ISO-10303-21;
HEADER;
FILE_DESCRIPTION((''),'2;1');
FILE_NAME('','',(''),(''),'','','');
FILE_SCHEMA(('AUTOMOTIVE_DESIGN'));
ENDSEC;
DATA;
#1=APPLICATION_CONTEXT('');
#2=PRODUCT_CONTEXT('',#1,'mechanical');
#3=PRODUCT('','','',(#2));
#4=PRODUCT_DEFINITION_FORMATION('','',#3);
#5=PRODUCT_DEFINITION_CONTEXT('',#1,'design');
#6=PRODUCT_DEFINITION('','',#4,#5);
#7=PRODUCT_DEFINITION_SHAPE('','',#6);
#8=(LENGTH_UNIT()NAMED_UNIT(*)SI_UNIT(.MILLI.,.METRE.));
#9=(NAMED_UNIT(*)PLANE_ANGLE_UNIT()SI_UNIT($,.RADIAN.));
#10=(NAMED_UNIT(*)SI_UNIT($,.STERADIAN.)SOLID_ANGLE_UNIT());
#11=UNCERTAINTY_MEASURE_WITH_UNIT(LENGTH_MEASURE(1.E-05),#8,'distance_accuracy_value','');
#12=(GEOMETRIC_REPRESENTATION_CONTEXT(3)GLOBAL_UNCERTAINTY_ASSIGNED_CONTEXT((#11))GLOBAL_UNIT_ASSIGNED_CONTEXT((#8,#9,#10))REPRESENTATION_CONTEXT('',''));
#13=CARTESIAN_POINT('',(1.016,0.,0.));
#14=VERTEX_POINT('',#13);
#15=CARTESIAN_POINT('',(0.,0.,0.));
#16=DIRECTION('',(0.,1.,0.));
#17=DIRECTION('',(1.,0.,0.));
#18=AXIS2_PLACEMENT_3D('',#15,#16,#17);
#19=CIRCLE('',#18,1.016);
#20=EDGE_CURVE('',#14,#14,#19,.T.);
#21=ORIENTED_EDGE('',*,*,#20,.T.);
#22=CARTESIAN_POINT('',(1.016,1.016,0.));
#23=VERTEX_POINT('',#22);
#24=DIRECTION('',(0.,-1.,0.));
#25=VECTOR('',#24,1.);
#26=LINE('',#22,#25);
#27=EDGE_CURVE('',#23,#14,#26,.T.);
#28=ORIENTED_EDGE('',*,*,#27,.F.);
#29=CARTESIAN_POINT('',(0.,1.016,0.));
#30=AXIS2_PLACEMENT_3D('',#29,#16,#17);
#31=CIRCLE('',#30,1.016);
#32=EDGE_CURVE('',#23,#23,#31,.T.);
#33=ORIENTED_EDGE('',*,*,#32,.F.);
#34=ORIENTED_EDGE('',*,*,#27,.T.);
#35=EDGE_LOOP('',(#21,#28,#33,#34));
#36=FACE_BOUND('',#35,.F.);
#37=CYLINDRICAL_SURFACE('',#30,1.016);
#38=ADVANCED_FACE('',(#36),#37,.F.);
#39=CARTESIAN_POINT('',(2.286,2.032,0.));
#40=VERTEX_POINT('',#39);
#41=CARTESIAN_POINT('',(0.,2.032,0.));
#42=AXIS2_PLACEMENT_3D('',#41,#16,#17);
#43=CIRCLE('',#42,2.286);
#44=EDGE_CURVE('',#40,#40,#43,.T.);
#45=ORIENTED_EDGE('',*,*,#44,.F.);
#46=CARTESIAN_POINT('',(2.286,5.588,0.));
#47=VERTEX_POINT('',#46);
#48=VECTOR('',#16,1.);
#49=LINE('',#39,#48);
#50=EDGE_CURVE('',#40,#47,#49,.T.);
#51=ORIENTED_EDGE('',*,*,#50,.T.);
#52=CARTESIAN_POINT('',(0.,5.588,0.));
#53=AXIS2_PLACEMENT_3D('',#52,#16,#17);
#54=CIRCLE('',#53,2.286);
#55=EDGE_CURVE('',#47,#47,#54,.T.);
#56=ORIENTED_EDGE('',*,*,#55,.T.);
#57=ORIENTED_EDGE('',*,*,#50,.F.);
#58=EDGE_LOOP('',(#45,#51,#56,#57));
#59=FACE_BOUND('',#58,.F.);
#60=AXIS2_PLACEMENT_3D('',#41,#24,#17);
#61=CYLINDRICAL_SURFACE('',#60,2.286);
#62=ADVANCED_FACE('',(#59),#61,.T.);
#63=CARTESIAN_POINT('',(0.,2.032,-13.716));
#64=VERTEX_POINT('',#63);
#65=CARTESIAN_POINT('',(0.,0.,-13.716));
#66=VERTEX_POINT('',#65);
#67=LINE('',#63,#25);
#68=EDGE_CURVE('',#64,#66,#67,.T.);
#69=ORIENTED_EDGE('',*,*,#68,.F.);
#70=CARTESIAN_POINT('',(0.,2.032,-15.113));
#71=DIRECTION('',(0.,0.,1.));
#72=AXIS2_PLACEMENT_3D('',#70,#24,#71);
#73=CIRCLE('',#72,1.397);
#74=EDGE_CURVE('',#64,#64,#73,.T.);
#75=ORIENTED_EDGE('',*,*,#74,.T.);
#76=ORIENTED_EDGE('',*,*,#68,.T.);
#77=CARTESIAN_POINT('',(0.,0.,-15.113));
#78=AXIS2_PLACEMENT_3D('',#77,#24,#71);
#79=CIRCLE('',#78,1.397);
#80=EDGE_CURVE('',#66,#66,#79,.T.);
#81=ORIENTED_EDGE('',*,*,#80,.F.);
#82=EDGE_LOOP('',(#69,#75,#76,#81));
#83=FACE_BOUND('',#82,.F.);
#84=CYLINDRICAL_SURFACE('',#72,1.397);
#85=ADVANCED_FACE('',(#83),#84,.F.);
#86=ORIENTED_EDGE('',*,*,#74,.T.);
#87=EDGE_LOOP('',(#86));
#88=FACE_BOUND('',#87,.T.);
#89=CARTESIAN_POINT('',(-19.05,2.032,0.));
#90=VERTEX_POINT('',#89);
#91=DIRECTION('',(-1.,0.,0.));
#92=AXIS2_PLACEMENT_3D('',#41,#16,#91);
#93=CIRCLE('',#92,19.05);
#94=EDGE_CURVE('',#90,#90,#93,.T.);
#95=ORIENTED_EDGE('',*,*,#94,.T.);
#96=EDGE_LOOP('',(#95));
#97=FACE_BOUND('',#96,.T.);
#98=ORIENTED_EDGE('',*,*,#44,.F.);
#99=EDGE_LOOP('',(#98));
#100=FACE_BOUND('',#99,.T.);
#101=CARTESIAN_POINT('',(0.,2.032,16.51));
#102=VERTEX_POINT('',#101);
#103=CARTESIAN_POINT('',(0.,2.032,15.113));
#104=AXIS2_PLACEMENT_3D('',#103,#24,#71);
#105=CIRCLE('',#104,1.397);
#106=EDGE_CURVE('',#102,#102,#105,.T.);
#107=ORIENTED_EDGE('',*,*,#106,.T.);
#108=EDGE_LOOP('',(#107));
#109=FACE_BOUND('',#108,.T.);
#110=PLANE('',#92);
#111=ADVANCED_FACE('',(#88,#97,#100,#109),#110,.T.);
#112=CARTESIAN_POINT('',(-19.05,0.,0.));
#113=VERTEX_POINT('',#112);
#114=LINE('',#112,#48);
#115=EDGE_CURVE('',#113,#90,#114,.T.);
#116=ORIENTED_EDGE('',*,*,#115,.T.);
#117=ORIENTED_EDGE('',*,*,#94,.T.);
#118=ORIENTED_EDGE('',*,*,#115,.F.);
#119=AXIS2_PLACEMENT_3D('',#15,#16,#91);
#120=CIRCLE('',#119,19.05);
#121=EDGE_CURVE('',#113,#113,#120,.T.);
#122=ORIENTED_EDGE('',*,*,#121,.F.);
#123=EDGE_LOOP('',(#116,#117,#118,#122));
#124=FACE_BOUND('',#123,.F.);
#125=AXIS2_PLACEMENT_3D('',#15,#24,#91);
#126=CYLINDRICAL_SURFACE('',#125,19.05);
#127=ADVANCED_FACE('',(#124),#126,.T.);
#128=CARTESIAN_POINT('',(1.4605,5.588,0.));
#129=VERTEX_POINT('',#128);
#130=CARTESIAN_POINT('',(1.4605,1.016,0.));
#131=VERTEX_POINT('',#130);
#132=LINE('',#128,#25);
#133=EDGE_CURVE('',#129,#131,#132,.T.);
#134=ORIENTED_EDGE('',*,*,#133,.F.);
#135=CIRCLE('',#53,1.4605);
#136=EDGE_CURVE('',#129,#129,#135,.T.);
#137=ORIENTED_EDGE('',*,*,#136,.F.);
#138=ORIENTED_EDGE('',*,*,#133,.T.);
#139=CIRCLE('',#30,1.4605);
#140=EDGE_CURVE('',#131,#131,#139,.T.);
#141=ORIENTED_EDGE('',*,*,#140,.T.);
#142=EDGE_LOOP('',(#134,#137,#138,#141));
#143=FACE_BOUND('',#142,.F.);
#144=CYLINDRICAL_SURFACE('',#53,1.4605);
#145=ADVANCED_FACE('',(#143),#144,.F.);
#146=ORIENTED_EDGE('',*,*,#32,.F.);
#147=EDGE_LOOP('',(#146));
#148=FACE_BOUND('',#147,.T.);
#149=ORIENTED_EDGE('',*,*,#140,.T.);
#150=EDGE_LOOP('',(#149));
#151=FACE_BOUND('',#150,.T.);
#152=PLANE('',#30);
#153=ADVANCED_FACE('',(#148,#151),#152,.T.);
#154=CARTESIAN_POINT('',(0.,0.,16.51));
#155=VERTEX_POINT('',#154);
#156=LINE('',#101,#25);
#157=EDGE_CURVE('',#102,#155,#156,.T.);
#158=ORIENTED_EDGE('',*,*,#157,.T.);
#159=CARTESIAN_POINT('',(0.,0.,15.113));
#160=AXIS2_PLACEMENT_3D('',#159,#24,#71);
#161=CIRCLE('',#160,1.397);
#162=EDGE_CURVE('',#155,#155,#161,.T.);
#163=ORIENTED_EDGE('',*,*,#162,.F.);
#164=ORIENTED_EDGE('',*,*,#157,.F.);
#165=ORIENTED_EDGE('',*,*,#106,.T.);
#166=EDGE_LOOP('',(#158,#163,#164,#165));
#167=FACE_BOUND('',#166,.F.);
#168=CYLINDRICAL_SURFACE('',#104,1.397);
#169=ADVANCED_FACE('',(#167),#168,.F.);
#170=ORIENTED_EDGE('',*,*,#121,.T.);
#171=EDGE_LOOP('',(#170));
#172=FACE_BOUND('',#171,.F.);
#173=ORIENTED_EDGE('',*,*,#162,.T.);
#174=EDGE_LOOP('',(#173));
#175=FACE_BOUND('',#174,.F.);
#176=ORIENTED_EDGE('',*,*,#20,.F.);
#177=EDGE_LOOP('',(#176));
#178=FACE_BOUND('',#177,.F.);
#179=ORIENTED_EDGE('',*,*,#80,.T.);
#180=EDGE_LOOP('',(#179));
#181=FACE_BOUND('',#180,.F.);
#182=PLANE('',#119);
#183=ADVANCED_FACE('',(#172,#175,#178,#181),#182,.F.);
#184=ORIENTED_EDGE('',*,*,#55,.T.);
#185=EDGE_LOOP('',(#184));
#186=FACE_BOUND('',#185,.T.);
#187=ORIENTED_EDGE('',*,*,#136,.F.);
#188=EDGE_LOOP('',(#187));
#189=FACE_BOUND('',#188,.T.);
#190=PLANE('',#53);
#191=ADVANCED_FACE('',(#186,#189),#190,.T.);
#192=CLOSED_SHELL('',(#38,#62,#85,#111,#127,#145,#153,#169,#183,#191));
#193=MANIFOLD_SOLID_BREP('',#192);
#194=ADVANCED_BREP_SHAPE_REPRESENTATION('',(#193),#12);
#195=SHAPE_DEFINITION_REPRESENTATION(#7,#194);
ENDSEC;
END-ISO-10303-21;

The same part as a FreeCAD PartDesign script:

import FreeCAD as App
import Part
import Sketcher
Q = App.Units.Quantity

doc = App.newDocument("Part")
body = doc.addObject("PartDesign::Body", "Body")

# Sketch on XZ plane
sketch1 = body.newObject("Sketcher::SketchObject", "Sketch")
sketch1.AttachmentSupport = (doc.getObject("XZ_Plane"), [""])
sketch1.MapMode = "FlatFace"
sketch1.addGeometry(Part.Circle(App.Vector(0, 0, 0), App.Vector(0, 0, 1), 19.05), False)
sketch1.addConstraint([
    Sketcher.Constraint("Coincident", 0, 3, -1, 1),
    Sketcher.Constraint("Diameter", 0, Q("1.5 in")),
])
pad1 = body.newObject("PartDesign::Pad", "Pad")
pad1.Profile = sketch1
pad1.Length = Q("0.08 in")
pad1.Reversed = True

# Sketch on XZ plane
sketch2 = body.newObject("Sketcher::SketchObject", "Sketch001")
sketch2.AttachmentSupport = (doc.getObject("XZ_Plane"), [""])
sketch2.MapMode = "FlatFace"
sketch2.AttachmentOffset = App.Placement(App.Vector(0, 0, -0.08 * 25.4), App.Rotation())
sketch2.addGeometry(Part.Circle(App.Vector(0, 0, 0), App.Vector(0, 0, 1), 2.286), False)
sketch2.addConstraint([
    Sketcher.Constraint("Coincident", 0, 3, -1, 1),
    Sketcher.Constraint("Diameter", 0, Q("0.18 in")),
])
pad2 = body.newObject("PartDesign::Pad", "Pad001")
pad2.Profile = sketch2
pad2.Length = Q("0.14 in")
pad2.Reversed = True

# Sketch on XZ plane
sketch3 = body.newObject("Sketcher::SketchObject", "Sketch002")
sketch3.AttachmentSupport = (doc.getObject("XZ_Plane"), [""])
sketch3.MapMode = "FlatFace"
sketch3.AttachmentOffset = App.Placement(App.Vector(0, 0, -0.22 * 25.4), App.Rotation())
sketch3.addGeometry(Part.Circle(App.Vector(0, 0, 0), App.Vector(0, 0, 1), 1.4605), False)
sketch3.addConstraint([
    Sketcher.Constraint("Coincident", 0, 3, -1, 1),
    Sketcher.Constraint("Diameter", 0, Q("0.115 in")),
])
pocket1 = body.newObject("PartDesign::Pocket", "Pocket")
pocket1.Profile = sketch3
pocket1.Length = Q("0.18 in")
pocket1.Reversed = True

# Sketch on XZ plane
sketch4 = body.newObject("Sketcher::SketchObject", "Sketch003")
sketch4.AttachmentSupport = (doc.getObject("XZ_Plane"), [""])
sketch4.MapMode = "FlatFace"
sketch4.AttachmentOffset = App.Placement(App.Vector(0, 0, -0.04 * 25.4), App.Rotation())
sketch4.addGeometry(Part.Circle(App.Vector(0, 0, 0), App.Vector(0, 0, 1), 1.016), False)
sketch4.addConstraint([
    Sketcher.Constraint("Coincident", 0, 3, -1, 1),
    Sketcher.Constraint("Diameter", 0, Q("0.08 in")),
])
pocket2 = body.newObject("PartDesign::Pocket", "Pocket001")
pocket2.Profile = sketch4
pocket2.Length = Q("0.18 in")
pocket2.Reversed = True

# Sketch on XZ plane
sketch5 = body.newObject("Sketcher::SketchObject", "Sketch004")
sketch5.AttachmentSupport = (doc.getObject("XZ_Plane"), [""])
sketch5.MapMode = "FlatFace"
sketch5.AttachmentOffset = App.Placement(App.Vector(0, 0, -0.08 * 25.4), App.Rotation())
sketch5.addGeometry(Part.Circle(App.Vector(0, -15.113, 0), App.Vector(0, 0, 1), 1.397), False)
sketch5.addConstraint([
    Sketcher.Constraint("PointOnObject", 0, 3, -2),
    Sketcher.Constraint("Diameter", 0, Q("0.11 in")),
    Sketcher.Constraint("DistanceY", 0, 3, -1, 1, Q("0.595 in")),
])
doc.recompute()
hole = body.newObject("PartDesign::Hole", "Hole")
hole.Profile = sketch5
hole.ThreadType = "None"
hole.Diameter = Q("0.11 in")
hole.DepthType = "ThroughAll"
hole.Reversed = True

# Sketch on XZ plane
sketch6 = body.newObject("Sketcher::SketchObject", "Sketch005")
sketch6.AttachmentSupport = (doc.getObject("XZ_Plane"), [""])
sketch6.MapMode = "FlatFace"
sketch6.AttachmentOffset = App.Placement(App.Vector(0, 0, -0.08 * 25.4), App.Rotation())
sketch6.addGeometry(Part.Circle(App.Vector(0, 15.113, 0), App.Vector(0, 0, 1), 1.397), False)
sketch6.addConstraint([
    Sketcher.Constraint("PointOnObject", 0, 3, -2),
    Sketcher.Constraint("Diameter", 0, Q("0.11 in")),
    Sketcher.Constraint("DistanceY", -1, 1, 0, 3, Q("0.595 in")),
])
doc.recompute()
hole2 = body.newObject("PartDesign::Hole", "Hole001")
hole2.Profile = sketch6
hole2.ThreadType = "None"
hole2.Diameter = Q("0.11 in")
hole2.DepthType = "ThroughAll"
hole2.Reversed = True

doc.recompute()
